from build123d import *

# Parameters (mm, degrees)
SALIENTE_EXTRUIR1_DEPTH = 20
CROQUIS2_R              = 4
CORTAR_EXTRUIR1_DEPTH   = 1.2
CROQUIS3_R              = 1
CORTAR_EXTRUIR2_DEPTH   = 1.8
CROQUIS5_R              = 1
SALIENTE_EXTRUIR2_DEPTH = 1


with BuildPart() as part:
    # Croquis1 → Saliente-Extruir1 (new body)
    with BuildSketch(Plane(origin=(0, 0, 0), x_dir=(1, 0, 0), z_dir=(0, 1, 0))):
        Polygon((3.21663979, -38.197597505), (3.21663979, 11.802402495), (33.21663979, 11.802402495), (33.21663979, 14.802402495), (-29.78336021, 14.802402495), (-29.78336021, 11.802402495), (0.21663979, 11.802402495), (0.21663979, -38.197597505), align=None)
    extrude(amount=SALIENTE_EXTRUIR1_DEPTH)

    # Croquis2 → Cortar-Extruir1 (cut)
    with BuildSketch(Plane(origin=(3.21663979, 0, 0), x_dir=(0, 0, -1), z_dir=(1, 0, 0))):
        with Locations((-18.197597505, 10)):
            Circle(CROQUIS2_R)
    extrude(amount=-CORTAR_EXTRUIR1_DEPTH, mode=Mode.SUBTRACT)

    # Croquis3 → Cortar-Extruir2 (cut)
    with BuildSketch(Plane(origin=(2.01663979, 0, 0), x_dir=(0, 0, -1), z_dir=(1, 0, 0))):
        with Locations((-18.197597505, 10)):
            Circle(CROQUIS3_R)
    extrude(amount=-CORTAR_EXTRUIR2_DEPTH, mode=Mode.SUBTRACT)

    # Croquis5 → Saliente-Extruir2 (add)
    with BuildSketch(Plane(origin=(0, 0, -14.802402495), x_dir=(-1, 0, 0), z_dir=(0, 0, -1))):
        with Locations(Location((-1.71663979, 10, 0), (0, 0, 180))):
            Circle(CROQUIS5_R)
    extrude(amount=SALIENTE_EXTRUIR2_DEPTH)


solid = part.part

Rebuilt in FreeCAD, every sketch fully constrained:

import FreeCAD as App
import Part
import Sketcher
Q = App.Units.Quantity

doc = App.newDocument("Part")
params = doc.addObject("Spreadsheet::Sheet", "Params")
for row, (alias, value) in enumerate([
    ("sketch1_width", "30 mm"),
    ("sketch1_width2", "63 mm"),
    ("sketch1_height", "50 mm"),
    ("pad1_length", "20 mm"),
    ("sketch2_diameter", "8 mm"),
    ("pocket1_length", "1.2 mm"),
    ("sketch3_diameter", "2 mm"),
    ("pocket2_length", "1.8 mm"),
    ("sketch4_diameter", "2 mm"),
    ("pad2_length", "1 mm"),
], start=1):
    params.set(f"A{row}", alias)
    params.set(f"B{row}", "=" + value)
    params.setAlias(f"B{row}", alias)

body = doc.addObject("PartDesign::Body", "Body")

sketch1 = body.newObject("Sketcher::SketchObject", "Sketch")
sketch1.AttachmentSupport = (doc.getObject("XZ_Plane"), [""])
sketch1.MapMode = "FlatFace"
sketch1.addGeometry([
    Part.LineSegment(App.Vector(3.21664, 38.197598, 0), App.Vector(3.21664, -11.802402, 0)),
    Part.LineSegment(App.Vector(3.21664, -11.802402, 0), App.Vector(33.21664, -11.802402, 0)),
    Part.LineSegment(App.Vector(33.21664, -11.802402, 0), App.Vector(33.21664, -14.802402, 0)),
    Part.LineSegment(App.Vector(33.21664, -14.802402, 0), App.Vector(-29.78336, -14.802402, 0)),
    Part.LineSegment(App.Vector(-29.78336, -14.802402, 0), App.Vector(-29.78336, -11.802402, 0)),
    Part.LineSegment(App.Vector(-29.78336, -11.802402, 0), App.Vector(0.21664, -11.802402, 0)),
    Part.LineSegment(App.Vector(0.21664, -11.802402, 0), App.Vector(0.21664, 38.197598, 0)),
    Part.LineSegment(App.Vector(0.21664, 38.197598, 0), App.Vector(3.21664, 38.197598, 0)),
], False)
sketch1.addConstraint([
    Sketcher.Constraint("Coincident", 0, 2, 1, 1),
    Sketcher.Constraint("Coincident", 1, 2, 2, 1),
    Sketcher.Constraint("Coincident", 2, 2, 3, 1),
    Sketcher.Constraint("Coincident", 3, 2, 4, 1),
    Sketcher.Constraint("Coincident", 4, 2, 5, 1),
    Sketcher.Constraint("Coincident", 5, 2, 6, 1),
    Sketcher.Constraint("Coincident", 6, 2, 7, 1),
    Sketcher.Constraint("Coincident", 7, 2, 0, 1),
    Sketcher.Constraint("Vertical", 0),
    Sketcher.Constraint("Horizontal", 1),
    Sketcher.Constraint("Vertical", 2),
    Sketcher.Constraint("Horizontal", 3),
    Sketcher.Constraint("Vertical", 4),
    Sketcher.Constraint("Horizontal", 5),
    Sketcher.Constraint("Vertical", 6),
    Sketcher.Constraint("Horizontal", 7),
    Sketcher.Constraint("Horizontal", 1, 2, 4, 2),
    Sketcher.Constraint("Equal", 1, 5),
    Sketcher.Constraint("Equal", 7, 2),
    Sketcher.Constraint("DistanceX", 1, 1, 1, 2, Q("30 mm")),
    Sketcher.Constraint("DistanceX", 3, 2, 3, 1, Q("63 mm")),
    Sketcher.Constraint("DistanceY", 0, 2, 0, 1, Q("50 mm")),
    Sketcher.Constraint("DistanceX", -1, 1, 0, 2, Q("3.21664 mm")),
    Sketcher.Constraint("DistanceY", 0, 2, -1, 1, Q("11.802402 mm")),
])
sketch1.setExpression("Constraints[19]", "Params.sketch1_width")
sketch1.setExpression("Constraints[20]", "Params.sketch1_width2")
sketch1.setExpression("Constraints[21]", "Params.sketch1_height")
pad1 = body.newObject("PartDesign::Pad", "Pad")
pad1.Profile = sketch1
pad1.setExpression("Length", "Params.pad1_length")
pad1.Reversed = True

sketch2 = body.newObject("Sketcher::SketchObject", "Sketch001")
sketch2.AttachmentSupport = (doc.getObject("YZ_Plane"), [""])
sketch2.MapMode = "FlatFace"
sketch2.AttachmentOffset = App.Placement(App.Vector(0, 0, 3.21664), App.Rotation())
sketch2.addGeometry(Part.Circle(App.Vector(10, 18.197598, 0), App.Vector(0, 0, 1), 4), False)
sketch2.addConstraint([
    Sketcher.Constraint("Diameter", 0, Q("8 mm")),
    Sketcher.Constraint("DistanceX", -1, 1, 0, 3, Q("10 mm")),
    Sketcher.Constraint("DistanceY", -1, 1, 0, 3, Q("18.197598 mm")),
])
sketch2.setExpression("Constraints[0]", "Params.sketch2_diameter")
pocket1 = body.newObject("PartDesign::Pocket", "Pocket")
pocket1.Profile = sketch2
pocket1.setExpression("Length", "Params.pocket1_length")

sketch3 = body.newObject("Sketcher::SketchObject", "Sketch002")
sketch3.AttachmentSupport = (doc.getObject("YZ_Plane"), [""])
sketch3.MapMode = "FlatFace"
sketch3.AttachmentOffset = App.Placement(App.Vector(0, 0, 2.01664), App.Rotation())
sketch3.addGeometry(Part.Circle(App.Vector(10, 18.197598, 0), App.Vector(0, 0, 1), 1), False)
sketch3.addConstraint([
    Sketcher.Constraint("Diameter", 0, Q("2 mm")),
    Sketcher.Constraint("DistanceX", -1, 1, 0, 3, Q("10 mm")),
    Sketcher.Constraint("DistanceY", -1, 1, 0, 3, Q("18.197598 mm")),
])
sketch3.setExpression("Constraints[0]", "Params.sketch3_diameter")
pocket2 = body.newObject("PartDesign::Pocket", "Pocket001")
pocket2.Profile = sketch3
pocket2.setExpression("Length", "Params.pocket2_length")

sketch4 = body.newObject("Sketcher::SketchObject", "Sketch003")
sketch4.AttachmentSupport = (doc.getObject("XY_Plane"), [""])
sketch4.MapMode = "FlatFace"
sketch4.AttachmentOffset = App.Placement(App.Vector(0, 0, -14.802402), App.Rotation())
sketch4.addGeometry(Part.Circle(App.Vector(1.71664, 10, 0), App.Vector(0, 0, 1), 1), False)
sketch4.addConstraint([
    Sketcher.Constraint("Diameter", 0, Q("2 mm")),
    Sketcher.Constraint("DistanceY", -1, 1, 0, 3, Q("10 mm")),
    Sketcher.Constraint("DistanceX", -1, 1, 0, 3, Q("1.71664 mm")),
])
sketch4.setExpression("Constraints[0]", "Params.sketch4_diameter")
pad2 = body.newObject("PartDesign::Pad", "Pad001")
pad2.Profile = sketch4
pad2.setExpression("Length", "Params.pad2_length")
pad2.Reversed = True

doc.recompute()
